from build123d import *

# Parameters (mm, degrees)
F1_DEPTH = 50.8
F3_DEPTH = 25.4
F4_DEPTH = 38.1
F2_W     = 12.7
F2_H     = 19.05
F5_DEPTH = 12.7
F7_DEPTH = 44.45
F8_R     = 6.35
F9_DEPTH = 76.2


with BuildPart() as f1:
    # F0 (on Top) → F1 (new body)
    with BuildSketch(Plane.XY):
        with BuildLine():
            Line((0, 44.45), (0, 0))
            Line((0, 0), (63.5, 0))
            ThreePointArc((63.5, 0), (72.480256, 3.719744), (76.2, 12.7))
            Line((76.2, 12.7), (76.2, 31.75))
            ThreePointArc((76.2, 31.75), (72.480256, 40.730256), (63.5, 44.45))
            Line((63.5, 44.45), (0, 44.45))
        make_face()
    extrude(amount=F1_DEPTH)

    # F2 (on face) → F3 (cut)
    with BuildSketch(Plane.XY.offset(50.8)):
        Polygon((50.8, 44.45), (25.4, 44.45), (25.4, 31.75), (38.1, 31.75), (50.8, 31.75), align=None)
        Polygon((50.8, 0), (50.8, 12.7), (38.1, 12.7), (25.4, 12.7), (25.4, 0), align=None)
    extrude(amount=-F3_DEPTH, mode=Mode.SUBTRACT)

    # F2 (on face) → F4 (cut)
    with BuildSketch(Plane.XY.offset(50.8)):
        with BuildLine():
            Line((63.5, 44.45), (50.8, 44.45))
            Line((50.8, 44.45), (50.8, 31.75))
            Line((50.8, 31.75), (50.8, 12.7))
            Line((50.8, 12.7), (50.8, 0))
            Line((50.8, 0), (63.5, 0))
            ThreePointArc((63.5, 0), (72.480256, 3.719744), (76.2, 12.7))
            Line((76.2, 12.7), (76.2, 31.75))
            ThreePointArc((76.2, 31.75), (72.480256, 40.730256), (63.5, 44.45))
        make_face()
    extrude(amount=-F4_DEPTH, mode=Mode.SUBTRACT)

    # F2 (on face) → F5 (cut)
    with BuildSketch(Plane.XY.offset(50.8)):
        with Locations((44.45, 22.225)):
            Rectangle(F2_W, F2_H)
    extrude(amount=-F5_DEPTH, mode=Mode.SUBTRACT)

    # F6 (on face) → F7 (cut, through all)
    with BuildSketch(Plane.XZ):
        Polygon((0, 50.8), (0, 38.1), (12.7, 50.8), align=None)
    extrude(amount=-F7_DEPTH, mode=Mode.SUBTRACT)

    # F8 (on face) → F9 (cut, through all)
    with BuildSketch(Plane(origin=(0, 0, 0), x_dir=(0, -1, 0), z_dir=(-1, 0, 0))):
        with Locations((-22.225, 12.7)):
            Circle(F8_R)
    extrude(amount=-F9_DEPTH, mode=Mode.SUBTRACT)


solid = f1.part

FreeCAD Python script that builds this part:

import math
import FreeCAD as App
import Part
import Sketcher
Q = App.Units.Quantity


def add_polygon(sketch, points):
    """Adds a closed chain of lines whose ends are joined by coincident constraints."""
    first, n = sketch.GeometryCount, len(points)
    for a, b in zip(points, points[1:] + points[:1]):
        sketch.addGeometry(Part.LineSegment(App.Vector(*a, 0), App.Vector(*b, 0)), False)
    for i in range(n):
        sketch.addConstraint(Sketcher.Constraint("Coincident", first + i, 2, first + (i + 1) % n, 1))

doc = App.newDocument("Part")
params = doc.addObject("Spreadsheet::Sheet", "Params")
for row, (alias, value) in enumerate([
    ("sketch1_radius", "0.5 in"),
    ("sketch1_width", "2.5 in"),
    ("sketch1_height", "1.75 in"),
    ("pad1_length", "2 in"),
    ("sketch2_width", "1 in"),
    ("sketch2_height", "0.5 in"),
    ("pocket1_length", "1 in"),
    ("sketch3_radius", "0.5 in"),
    ("sketch3_width", "0.5 in"),
    ("sketch3_height", "1.75 in"),
    ("pocket2_length", "1.5 in"),
    ("sketch4_width", "0.5 in"),
    ("sketch4_height", "0.75 in"),
    ("pocket3_length", "0.5 in"),
    ("sketch5_width", "0.5 in"),
    ("sketch6_diameter", "0.5 in"),
], start=1):
    params.set(f"A{row}", alias)
    params.set(f"B{row}", "=" + value)
    params.setAlias(f"B{row}", alias)

body = doc.addObject("PartDesign::Body", "Body")

# Sketch on XY plane
sketch1 = doc.addObject("Sketcher::SketchObject", "Sketch")
body.addObject(sketch1)
sketch1.AttachmentSupport = (doc.XY_Plane, [""])
sketch1.MapMode = "FlatFace"
sketch1.addGeometry(Part.LineSegment(App.Vector(0, 44, 0), App.Vector(0, 0, 0)), False)
sketch1.addGeometry(Part.LineSegment(App.Vector(0, 0, 0), App.Vector(64, 0, 0)), False)
sketch1.addGeometry(Part.ArcOfCircle(Part.Circle(App.Vector(63, 13, 0), App.Vector(0, 0, 1), 13), math.radians(-90), math.radians(0)), False)
sketch1.addGeometry(Part.LineSegment(App.Vector(76, 13, 0), App.Vector(76, 32, 0)), False)
sketch1.addGeometry(Part.ArcOfCircle(Part.Circle(App.Vector(63, 32, 0), App.Vector(0, 0, 1), 13), math.radians(0), math.radians(90)), False)
sketch1.addGeometry(Part.LineSegment(App.Vector(64, 44, 0), App.Vector(0, 44, 0)), False)
sketch1.addConstraint(Sketcher.Constraint("Coincident", 0, 2, 1, 1))
sketch1.addConstraint(Sketcher.Constraint("Tangent", 1, 2, 2, 1))
sketch1.addConstraint(Sketcher.Constraint("Tangent", 2, 2, 3, 1))
sketch1.addConstraint(Sketcher.Constraint("Tangent", 3, 2, 4, 1))
sketch1.addConstraint(Sketcher.Constraint("Tangent", 4, 2, 5, 1))
sketch1.addConstraint(Sketcher.Constraint("Coincident", 5, 2, 0, 1))
sketch1.addConstraint(Sketcher.Constraint("Vertical", 0))
sketch1.addConstraint(Sketcher.Constraint("Horizontal", 1))
sketch1.addConstraint(Sketcher.Constraint("Vertical", 3))
sketch1.addConstraint(Sketcher.Constraint("Horizontal", 5))
sketch1.addConstraint(Sketcher.Constraint("Coincident", 0, 2, -1, 1))
sketch1.addConstraint(Sketcher.Constraint("Equal", 2, 4))
sketch1.addConstraint(Sketcher.Constraint("Radius", 2, Q("0.5 in")))
sketch1.addConstraint(Sketcher.Constraint("DistanceX", 1, 1, 1, 2, Q("2.5 in")))
sketch1.addConstraint(Sketcher.Constraint("DistanceY", 0, 2, 0, 1, Q("1.75 in")))
sketch1.setExpression("Constraints[12]", "Params.sketch1_radius")
sketch1.setExpression("Constraints[13]", "Params.sketch1_width")
sketch1.setExpression("Constraints[14]", "Params.sketch1_height")
pad1 = doc.addObject("PartDesign::Pad", "Pad")
body.addObject(pad1)
pad1.Profile = sketch1
pad1.setExpression("Length", "Params.pad1_length")

# Sketch on XY plane
sketch2 = doc.addObject("Sketcher::SketchObject", "Sketch001")
body.addObject(sketch2)
sketch2.AttachmentSupport = (doc.XY_Plane, [""])
sketch2.MapMode = "FlatFace"
sketch2.AttachmentOffset = App.Placement(App.Vector(0, 0, 2 * 25.4), App.Rotation())
add_polygon(sketch2, [(51, 44), (25, 44), (25, 32), (51, 32)])  # lines 0-3
add_polygon(sketch2, [(51, 0), (51, 13), (25, 13), (25, 0)])  # lines 4-7
sketch2.addConstraint(Sketcher.Constraint("Horizontal", 0))
sketch2.addConstraint(Sketcher.Constraint("Vertical", 1))
sketch2.addConstraint(Sketcher.Constraint("Horizontal", 2))
sketch2.addConstraint(Sketcher.Constraint("Vertical", 3))
sketch2.addConstraint(Sketcher.Constraint("Vertical", 4))
sketch2.addConstraint(Sketcher.Constraint("Horizontal", 5))
sketch2.addConstraint(Sketcher.Constraint("Vertical", 6))
sketch2.addConstraint(Sketcher.Constraint("Horizontal", 7))
sketch2.addConstraint(Sketcher.Constraint("PointOnObject", 6, 2, -1))
sketch2.addConstraint(Sketcher.Constraint("Vertical", 3, 2, 4, 2))
sketch2.addConstraint(Sketcher.Constraint("Vertical", 1, 2, 5, 2))
sketch2.addConstraint(Sketcher.Constraint("Equal", 3, 4))
sketch2.addConstraint(Sketcher.Constraint("DistanceX", 0, 2, 0, 1, Q("1 in")))
sketch2.addConstraint(Sketcher.Constraint("DistanceY", 1, 2, 1, 1, Q("0.5 in")))
sketch2.addConstraint(Sketcher.Constraint("DistanceX", -1, 1, 0, 2, Q("1 in")))
sketch2.addConstraint(Sketcher.Constraint("DistanceY", -1, 1, 0, 2, Q("1.75 in")))
sketch2.setExpression("Constraints[20]", "Params.sketch2_width")
sketch2.setExpression("Constraints[21]", "Params.sketch2_height")
pocket1 = doc.addObject("PartDesign::Pocket", "Pocket")
body.addObject(pocket1)
pocket1.Profile = sketch2
pocket1.setExpression("Length", "Params.pocket1_length")

# Sketch on XY plane
sketch3 = doc.addObject("Sketcher::SketchObject", "Sketch002")
body.addObject(sketch3)
sketch3.AttachmentSupport = (doc.XY_Plane, [""])
sketch3.MapMode = "FlatFace"
sketch3.AttachmentOffset = App.Placement(App.Vector(0, 0, 2 * 25.4), App.Rotation())
sketch3.addGeometry(Part.LineSegment(App.Vector(64, 44, 0), App.Vector(51, 44, 0)), False)
sketch3.addGeometry(Part.LineSegment(App.Vector(51, 44, 0), App.Vector(51, 0, 0)), False)
sketch3.addGeometry(Part.LineSegment(App.Vector(51, 0, 0), App.Vector(64, 0, 0)), False)
sketch3.addGeometry(Part.ArcOfCircle(Part.Circle(App.Vector(63, 13, 0), App.Vector(0, 0, 1), 13), math.radians(-90), math.radians(0)), False)
sketch3.addGeometry(Part.LineSegment(App.Vector(76, 13, 0), App.Vector(76, 32, 0)), False)
sketch3.addGeometry(Part.ArcOfCircle(Part.Circle(App.Vector(63, 32, 0), App.Vector(0, 0, 1), 13), math.radians(0), math.radians(90)), False)
sketch3.addConstraint(Sketcher.Constraint("Coincident", 0, 2, 1, 1))
sketch3.addConstraint(Sketcher.Constraint("Coincident", 1, 2, 2, 1))
sketch3.addConstraint(Sketcher.Constraint("Tangent", 2, 2, 3, 1))
sketch3.addConstraint(Sketcher.Constraint("Tangent", 3, 2, 4, 1))
sketch3.addConstraint(Sketcher.Constraint("Tangent", 4, 2, 5, 1))
sketch3.addConstraint(Sketcher.Constraint("Tangent", 5, 2, 0, 1))
sketch3.addConstraint(Sketcher.Constraint("Horizontal", 0))
sketch3.addConstraint(Sketcher.Constraint("Vertical", 1))
sketch3.addConstraint(Sketcher.Constraint("Horizontal", 2))
sketch3.addConstraint(Sketcher.Constraint("Vertical", 4))
sketch3.addConstraint(Sketcher.Constraint("Equal", 3, 5))
sketch3.addConstraint(Sketcher.Constraint("PointOnObject", 1, 2, -1))
sketch3.addConstraint(Sketcher.Constraint("Radius", 3, Q("0.5 in")))
sketch3.addConstraint(Sketcher.Constraint("DistanceX", 0, 2, 0, 1, Q("0.5 in")))
sketch3.addConstraint(Sketcher.Constraint("DistanceX", -1, 1, 0, 2, Q("2 in")))
sketch3.addConstraint(Sketcher.Constraint("DistanceY", 1, 2, 1, 1, Q("1.75 in")))
sketch3.setExpression("Constraints[12]", "Params.sketch3_radius")
sketch3.setExpression("Constraints[13]", "Params.sketch3_width")
sketch3.setExpression("Constraints[15]", "Params.sketch3_height")
pocket2 = doc.addObject("PartDesign::Pocket", "Pocket001")
body.addObject(pocket2)
pocket2.Profile = sketch3
pocket2.setExpression("Length", "Params.pocket2_length")

# Sketch on XY plane
sketch4 = doc.addObject("Sketcher::SketchObject", "Sketch003")
body.addObject(sketch4)
sketch4.AttachmentSupport = (doc.XY_Plane, [""])
sketch4.MapMode = "FlatFace"
sketch4.AttachmentOffset = App.Placement(App.Vector(0, 0, 2 * 25.4), App.Rotation())
add_polygon(sketch4, [(38, 32), (38, 13), (51, 13), (51, 32)])  # lines 0-3
sketch4.addConstraint(Sketcher.Constraint("Vertical", 0))
sketch4.addConstraint(Sketcher.Constraint("Horizontal", 1))
sketch4.addConstraint(Sketcher.Constraint("Vertical", 2))
sketch4.addConstraint(Sketcher.Constraint("Horizontal", 3))
sketch4.addConstraint(Sketcher.Constraint("DistanceX", 1, 1, 1, 2, Q("0.5 in")))
sketch4.addConstraint(Sketcher.Constraint("DistanceX", -1, 1, 1, 2, Q("2 in")))
sketch4.addConstraint(Sketcher.Constraint("DistanceY", 0, 2, 0, 1, Q("0.75 in")))
sketch4.addConstraint(Sketcher.Constraint("DistanceY", -1, 1, 0, 2, Q("0.5 in")))
sketch4.setExpression("Constraints[8]", "Params.sketch4_width")
sketch4.setExpression("Constraints[10]", "Params.sketch4_height")
pocket3 = doc.addObject("PartDesign::Pocket", "Pocket002")
body.addObject(pocket3)
pocket3.Profile = sketch4
pocket3.setExpression("Length", "Params.pocket3_length")

# Sketch on XZ plane
sketch5 = doc.addObject("Sketcher::SketchObject", "Sketch004")
body.addObject(sketch5)
sketch5.AttachmentSupport = (doc.XZ_Plane, [""])
sketch5.MapMode = "FlatFace"
add_polygon(sketch5, [(0, 51), (0, 38), (13, 51)])  # lines 0-2
sketch5.addConstraint(Sketcher.Constraint("Vertical", 0))
sketch5.addConstraint(Sketcher.Constraint("Horizontal", 2))
sketch5.addConstraint(Sketcher.Constraint("PointOnObject", 0, 2, -2))
sketch5.addConstraint(Sketcher.Constraint("Equal", 2, 0))
sketch5.addConstraint(Sketcher.Constraint("DistanceX", 2, 2, 2, 1, Q("0.5 in")))
sketch5.addConstraint(Sketcher.Constraint("DistanceY", -1, 1, 1, 2, Q("2 in")))
sketch5.setExpression("Constraints[7]", "Params.sketch5_width")
pocket4 = doc.addObject("PartDesign::Pocket", "Pocket003")
body.addObject(pocket4)
pocket4.Profile = sketch5
pocket4.Type = "ThroughAll"

# Sketch on YZ plane
sketch6 = doc.addObject("Sketcher::SketchObject", "Sketch005")
body.addObject(sketch6)
sketch6.AttachmentSupport = (doc.YZ_Plane, [""])
sketch6.MapMode = "FlatFace"
sketch6.addGeometry(Part.Circle(App.Vector(22, 13, 0), App.Vector(0, 0, 1), 6), False)
sketch6.addConstraint(Sketcher.Constraint("Diameter", 0, Q("0.5 in")))
sketch6.addConstraint(Sketcher.Constraint("DistanceY", -1, 1, 0, 3, Q("0.5 in")))
sketch6.addConstraint(Sketcher.Constraint("DistanceX", -1, 1, 0, 3, Q("0.875 in")))
sketch6.setExpression("Constraints[0]", "Params.sketch6_diameter")
pocket5 = doc.addObject("PartDesign::Pocket", "Pocket004")
body.addObject(pocket5)
pocket5.Profile = sketch6
pocket5.Type = "ThroughAll"
pocket5.Reversed = True

doc.recompute()
